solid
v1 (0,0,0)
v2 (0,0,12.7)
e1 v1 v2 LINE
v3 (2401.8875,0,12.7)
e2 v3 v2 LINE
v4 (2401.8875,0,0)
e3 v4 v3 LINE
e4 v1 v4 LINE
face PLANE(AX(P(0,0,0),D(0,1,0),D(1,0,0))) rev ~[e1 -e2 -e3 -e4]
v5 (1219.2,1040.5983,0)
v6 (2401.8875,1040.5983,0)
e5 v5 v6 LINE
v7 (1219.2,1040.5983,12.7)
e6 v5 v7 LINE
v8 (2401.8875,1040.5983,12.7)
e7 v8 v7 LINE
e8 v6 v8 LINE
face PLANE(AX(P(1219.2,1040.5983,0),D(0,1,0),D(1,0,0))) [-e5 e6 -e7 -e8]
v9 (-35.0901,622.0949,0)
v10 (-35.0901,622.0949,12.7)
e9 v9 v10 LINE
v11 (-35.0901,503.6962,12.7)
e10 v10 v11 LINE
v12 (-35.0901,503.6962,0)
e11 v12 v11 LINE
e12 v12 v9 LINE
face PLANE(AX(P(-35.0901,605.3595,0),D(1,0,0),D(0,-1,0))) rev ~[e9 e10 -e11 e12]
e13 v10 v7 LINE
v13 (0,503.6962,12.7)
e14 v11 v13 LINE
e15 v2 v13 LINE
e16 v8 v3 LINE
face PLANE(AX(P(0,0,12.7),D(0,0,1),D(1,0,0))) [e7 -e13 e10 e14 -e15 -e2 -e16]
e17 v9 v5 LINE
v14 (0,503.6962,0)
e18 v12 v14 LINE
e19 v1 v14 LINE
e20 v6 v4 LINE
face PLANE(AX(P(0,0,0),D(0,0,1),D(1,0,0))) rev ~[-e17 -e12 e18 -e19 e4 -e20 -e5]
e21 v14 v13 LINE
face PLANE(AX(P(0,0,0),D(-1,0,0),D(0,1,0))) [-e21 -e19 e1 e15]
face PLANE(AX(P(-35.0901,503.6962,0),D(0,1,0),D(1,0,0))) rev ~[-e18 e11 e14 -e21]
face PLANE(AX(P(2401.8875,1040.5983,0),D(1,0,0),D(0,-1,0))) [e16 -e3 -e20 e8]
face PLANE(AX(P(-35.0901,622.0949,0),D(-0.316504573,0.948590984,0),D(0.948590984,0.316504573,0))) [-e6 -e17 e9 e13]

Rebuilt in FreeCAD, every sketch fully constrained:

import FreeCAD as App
import Part
import Sketcher

V = App.Vector
Q = App.Units.Quantity


def add_polygon(sketch, points):
    """Adds a closed chain of lines whose ends are joined by coincident constraints."""
    first, n = sketch.GeometryCount, len(points)
    for a, b in zip(points, points[1:] + points[:1]):
        sketch.addGeometry(Part.LineSegment(App.Vector(*a, 0), App.Vector(*b, 0)), False)
    for i in range(n):
        sketch.addConstraint(Sketcher.Constraint("Coincident", first + i, 2, first + (i + 1) % n, 1))

doc = App.newDocument("Part")
body = doc.addObject("PartDesign::Body", "Body")

# Sketch on XY plane
sketch1 = doc.addObject("Sketcher::SketchObject", "Sketch")
body.addObject(sketch1)
sketch1.AttachmentSupport = (doc.XY_Plane, [""])
sketch1.MapMode = "FlatFace"
add_polygon(sketch1, [(0, 504), (0, 0), (2402, 0), (2402, 1041), (1219, 1041), (-35, 622), (-35, 504)])  # lines 0-6
sketch1.addConstraint(Sketcher.Constraint("Vertical", 0))
sketch1.addConstraint(Sketcher.Constraint("Horizontal", 1))
sketch1.addConstraint(Sketcher.Constraint("Vertical", 2))
sketch1.addConstraint(Sketcher.Constraint("Horizontal", 3))
sketch1.addConstraint(Sketcher.Constraint("Vertical", 5))
sketch1.addConstraint(Sketcher.Constraint("Horizontal", 6))
sketch1.addConstraint(Sketcher.Constraint("Coincident", 0, 2, -1, 1))
sketch1.addConstraint(Sketcher.Constraint("DistanceX", -1, 1, 3, 2, Q("48 in")))
sketch1.addConstraint(Sketcher.Constraint("DistanceX", 4, 2, 2, 2, Q("95.944 in")))
sketch1.addConstraint(Sketcher.Constraint("DistanceX", 1, 1, 1, 2, Q("94.5625 in")))
sketch1.addConstraint(Sketcher.Constraint("DistanceY", 0, 2, 0, 1, Q("503.6962 mm")))
sketch1.addConstraint(Sketcher.Constraint("DistanceY", 2, 1, 2, 2, Q("1040.5983 mm")))
sketch1.addConstraint(Sketcher.Constraint("DistanceY", 5, 2, 5, 1, Q("118.3987 mm")))
pad1 = doc.addObject("PartDesign::Pad", "Pad")
body.addObject(pad1)
pad1.Profile = sketch1
pad1.Length = Q("0.5 in")

doc.recompute()
